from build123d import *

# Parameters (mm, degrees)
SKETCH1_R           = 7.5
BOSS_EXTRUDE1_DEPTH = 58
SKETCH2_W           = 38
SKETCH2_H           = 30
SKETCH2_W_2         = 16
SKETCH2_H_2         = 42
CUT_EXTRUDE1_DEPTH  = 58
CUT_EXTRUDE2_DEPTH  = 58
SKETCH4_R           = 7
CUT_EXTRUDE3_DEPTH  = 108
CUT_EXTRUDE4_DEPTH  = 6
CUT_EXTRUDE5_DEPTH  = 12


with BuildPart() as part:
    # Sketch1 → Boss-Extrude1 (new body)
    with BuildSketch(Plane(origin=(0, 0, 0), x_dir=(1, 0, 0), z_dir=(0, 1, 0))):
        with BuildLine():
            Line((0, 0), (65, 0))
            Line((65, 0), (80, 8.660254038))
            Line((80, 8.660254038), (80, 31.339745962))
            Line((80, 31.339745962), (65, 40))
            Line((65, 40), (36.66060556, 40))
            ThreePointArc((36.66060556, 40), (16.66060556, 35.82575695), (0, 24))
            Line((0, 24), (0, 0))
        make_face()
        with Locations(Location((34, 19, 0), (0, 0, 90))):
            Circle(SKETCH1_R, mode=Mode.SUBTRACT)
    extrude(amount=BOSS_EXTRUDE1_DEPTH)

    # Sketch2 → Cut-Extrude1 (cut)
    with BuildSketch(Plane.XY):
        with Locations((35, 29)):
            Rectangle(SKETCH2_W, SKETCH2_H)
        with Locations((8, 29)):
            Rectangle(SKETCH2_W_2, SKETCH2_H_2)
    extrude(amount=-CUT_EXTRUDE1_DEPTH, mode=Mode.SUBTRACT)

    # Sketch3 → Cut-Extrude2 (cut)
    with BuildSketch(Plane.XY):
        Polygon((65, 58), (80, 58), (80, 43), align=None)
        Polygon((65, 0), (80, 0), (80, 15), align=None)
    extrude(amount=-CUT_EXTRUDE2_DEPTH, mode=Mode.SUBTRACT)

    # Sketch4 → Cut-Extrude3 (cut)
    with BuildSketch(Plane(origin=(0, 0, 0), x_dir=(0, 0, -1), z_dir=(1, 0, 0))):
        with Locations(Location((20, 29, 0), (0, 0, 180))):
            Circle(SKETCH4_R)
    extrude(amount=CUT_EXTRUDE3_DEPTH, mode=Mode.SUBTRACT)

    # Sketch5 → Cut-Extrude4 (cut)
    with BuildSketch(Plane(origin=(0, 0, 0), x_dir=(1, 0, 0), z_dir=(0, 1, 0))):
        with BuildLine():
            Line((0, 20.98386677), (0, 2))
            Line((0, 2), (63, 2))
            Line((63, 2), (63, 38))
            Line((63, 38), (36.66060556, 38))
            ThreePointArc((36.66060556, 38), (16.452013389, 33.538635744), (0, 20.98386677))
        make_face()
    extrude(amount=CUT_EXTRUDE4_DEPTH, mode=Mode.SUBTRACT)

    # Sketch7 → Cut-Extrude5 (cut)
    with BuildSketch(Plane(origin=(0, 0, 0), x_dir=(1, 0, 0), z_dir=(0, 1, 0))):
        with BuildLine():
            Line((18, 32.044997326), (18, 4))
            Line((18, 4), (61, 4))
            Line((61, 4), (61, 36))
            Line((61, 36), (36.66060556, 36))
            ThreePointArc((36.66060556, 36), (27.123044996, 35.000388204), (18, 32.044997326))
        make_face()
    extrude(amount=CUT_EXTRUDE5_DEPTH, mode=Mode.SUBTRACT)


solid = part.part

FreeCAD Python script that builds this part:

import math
import FreeCAD as App
import Part
import Sketcher

V = App.Vector
Q = App.Units.Quantity

doc = App.newDocument("Part")
params = doc.addObject("Spreadsheet::Sheet", "Params")
for row, (alias, value) in enumerate([
    ("sketch1_diameter", "15 mm"),
    ("sketch1_radius", "50 mm"),
    ("sketch1_width", "65 mm"),
    ("sketch1_height", "24 mm"),
    ("pad1_length", "58 mm"),
    ("sketch2_width", "38 mm"),
    ("sketch2_width2", "16 mm"),
    ("sketch2_height", "30 mm"),
    ("sketch2_height2", "6 mm"),
    ("pocket1_length", "58 mm"),
    ("sketch3_width", "15 mm"),
    ("pocket2_length", "58 mm"),
    ("sketch4_diameter", "14 mm"),
    ("pocket3_length", "108 mm"),
    ("sketch5_radius", "48 mm"),
    ("sketch5_width", "63 mm"),
    ("sketch5_height", "36 mm"),
    ("pocket4_length", "6 mm"),
    ("sketch6_radius", "46 mm"),
    ("sketch6_width", "43 mm"),
    ("sketch6_height", "32 mm"),
    ("pocket5_length", "12 mm"),
], start=1):
    params.set(f"A{row}", alias)
    params.set(f"B{row}", "=" + value)
    params.setAlias(f"B{row}", alias)

body = doc.addObject("PartDesign::Body", "Body")

# Sketch on XZ plane
sketch1 = body.newObject("Sketcher::SketchObject", "Sketch")
sketch1.AttachmentSupport = (doc.getObject("XZ_Plane"), [""])
sketch1.MapMode = "FlatFace"
sketch1.addGeometry([
    Part.LineSegment(V(0, 0, 0), V(65, 0, 0)),  # 0
    Part.LineSegment(V(65, 0, 0), V(80, -9, 0)),  # 1
    Part.LineSegment(V(80, -9, 0), V(80, -31, 0)),  # 2
    Part.LineSegment(V(80, -31, 0), V(65, -40, 0)),  # 3
    Part.LineSegment(V(65, -40, 0), V(37, -40, 0)),  # 4
    Part.ArcOfCircle(Part.Circle(V(37, 10, 0), V(0, 0, 1), 50), math.radians(-137), math.radians(-90)),  # 5
    Part.LineSegment(V(0, -24, 0), V(0, 0, 0)),  # 6
    Part.Circle(V(34, -19, 0), V(0, 0, 1), 8),  # 7
], False)
sketch1.addConstraint([
    Sketcher.Constraint("Coincident", 0, 2, 1, 1),
    Sketcher.Constraint("Coincident", 1, 2, 2, 1),
    Sketcher.Constraint("Coincident", 2, 2, 3, 1),
    Sketcher.Constraint("Coincident", 3, 2, 4, 1),
    Sketcher.Constraint("Tangent", 4, 2, 5, 2),
    Sketcher.Constraint("Coincident", 5, 1, 6, 1),
    Sketcher.Constraint("Coincident", 6, 2, 0, 1),
    Sketcher.Constraint("Horizontal", 0),
    Sketcher.Constraint("Vertical", 2),
    Sketcher.Constraint("Horizontal", 4),
    Sketcher.Constraint("Vertical", 6),
    Sketcher.Constraint("Coincident", 6, 2, -1, 1),
    Sketcher.Constraint("Vertical", 0, 2, 3, 2),
    Sketcher.Constraint("Equal", 1, 3),
    Sketcher.Constraint("Diameter", 7, Q("15 mm")),
    Sketcher.Constraint("Radius", 5, Q("50 mm")),
    Sketcher.Constraint("DistanceX", 0, 1, 0, 2, Q("65 mm")),
    Sketcher.Constraint("DistanceY", 6, 1, 6, 2, Q("24 mm")),
    Sketcher.Constraint("Angle", 1, Q("-30 deg")),
    Sketcher.Constraint("DistanceY", -1, 1, 5, 3, Q("10 mm")),
    Sketcher.Constraint("DistanceX", -1, 1, 7, 3, Q("34 mm")),
    Sketcher.Constraint("DistanceY", 7, 3, -1, 1, Q("19 mm")),
    Sketcher.Constraint("DistanceX", -1, 1, 1, 2, Q("80 mm")),
])
sketch1.setExpression("Constraints[14]", "Params.sketch1_diameter")
sketch1.setExpression("Constraints[15]", "Params.sketch1_radius")
sketch1.setExpression("Constraints[16]", "Params.sketch1_width")
sketch1.setExpression("Constraints[17]", "Params.sketch1_height")
pad1 = body.newObject("PartDesign::Pad", "Pad")
pad1.Profile = sketch1
pad1.setExpression("Length", "Params.pad1_length")
pad1.Reversed = True

# Sketch on XY plane
sketch2 = body.newObject("Sketcher::SketchObject", "Sketch001")
sketch2.AttachmentSupport = (doc.getObject("XY_Plane"), [""])
sketch2.MapMode = "FlatFace"
sketch2.addGeometry([
    Part.LineSegment(V(16, 14, 0), V(54, 14, 0)),  # 0
    Part.LineSegment(V(54, 14, 0), V(54, 44, 0)),  # 1
    Part.LineSegment(V(54, 44, 0), V(16, 44, 0)),  # 2
    Part.LineSegment(V(16, 44, 0), V(16, 50, 0)),  # 3
    Part.LineSegment(V(16, 50, 0), V(0, 50, 0)),  # 4
    Part.LineSegment(V(0, 50, 0), V(0, 8, 0)),  # 5
    Part.LineSegment(V(0, 8, 0), V(16, 8, 0)),  # 6
    Part.LineSegment(V(16, 8, 0), V(16, 14, 0)),  # 7
], False)
sketch2.addConstraint([
    Sketcher.Constraint("Coincident", 0, 2, 1, 1),
    Sketcher.Constraint("Coincident", 1, 2, 2, 1),
    Sketcher.Constraint("Coincident", 2, 2, 3, 1),
    Sketcher.Constraint("Coincident", 3, 2, 4, 1),
    Sketcher.Constraint("Coincident", 4, 2, 5, 1),
    Sketcher.Constraint("Coincident", 5, 2, 6, 1),
    Sketcher.Constraint("Coincident", 6, 2, 7, 1),
    Sketcher.Constraint("Coincident", 7, 2, 0, 1),
    Sketcher.Constraint("Horizontal", 0),
    Sketcher.Constraint("Vertical", 1),
    Sketcher.Constraint("Horizontal", 2),
    Sketcher.Constraint("Vertical", 3),
    Sketcher.Constraint("Horizontal", 4),
    Sketcher.Constraint("Vertical", 5),
    Sketcher.Constraint("Horizontal", 6),
    Sketcher.Constraint("Vertical", 7),
    Sketcher.Constraint("PointOnObject", 4, 2, -2),
    Sketcher.Constraint("Vertical", 3, 2, 6, 2),
    Sketcher.Constraint("Equal", 3, 7),
    Sketcher.Constraint("DistanceX", 0, 1, 0, 2, Q("38 mm")),
    Sketcher.Constraint("DistanceX", 4, 2, 4, 1, Q("16 mm")),
    Sketcher.Constraint("DistanceY", 1, 1, 1, 2, Q("30 mm")),
    Sketcher.Constraint("DistanceY", 3, 1, 3, 2, Q("6 mm")),
    Sketcher.Constraint("DistanceY", -1, 1, 0, 2, Q("14 mm")),
])
sketch2.setExpression("Constraints[19]", "Params.sketch2_width")
sketch2.setExpression("Constraints[20]", "Params.sketch2_width2")
sketch2.setExpression("Constraints[21]", "Params.sketch2_height")
sketch2.setExpression("Constraints[22]", "Params.sketch2_height2")
pocket1 = body.newObject("PartDesign::Pocket", "Pocket")
pocket1.Profile = sketch2
pocket1.setExpression("Length", "Params.pocket1_length")

# Sketch on XY plane
sketch3 = body.newObject("Sketcher::SketchObject", "Sketch002")
sketch3.AttachmentSupport = (doc.getObject("XY_Plane"), [""])
sketch3.MapMode = "FlatFace"
sketch3.addGeometry([
    Part.LineSegment(V(80, 58, 0), V(65, 58, 0)),  # 0
    Part.LineSegment(V(65, 58, 0), V(80, 43, 0)),  # 1
    Part.LineSegment(V(80, 43, 0), V(80, 58, 0)),  # 2
    Part.LineSegment(V(65, 0, 0), V(80, 0, 0)),  # 3
    Part.LineSegment(V(80, 0, 0), V(80, 15, 0)),  # 4
    Part.LineSegment(V(80, 15, 0), V(65, 0, 0)),  # 5
], False)
sketch3.addConstraint([
    Sketcher.Constraint("Coincident", 0, 2, 1, 1),
    Sketcher.Constraint("Coincident", 1, 2, 2, 1),
    Sketcher.Constraint("Coincident", 2, 2, 0, 1),
    Sketcher.Constraint("Coincident", 3, 2, 4, 1),
    Sketcher.Constraint("Coincident", 4, 2, 5, 1),
    Sketcher.Constraint("Coincident", 5, 2, 3, 1),
    Sketcher.Constraint("Horizontal", 0),
    Sketcher.Constraint("Vertical", 2),
    Sketcher.Constraint("Horizontal", 3),
    Sketcher.Constraint("Vertical", 4),
    Sketcher.Constraint("PointOnObject", 3, 2, -1),
    Sketcher.Constraint("Perpendicular", 1, 5),
    Sketcher.Constraint("Vertical", 2, 2, 3, 2),
    Sketcher.Constraint("Vertical", 0, 2, 5, 2),
    Sketcher.Constraint("Equal", 3, 2),
    Sketcher.Constraint("DistanceX", 0, 2, 0, 1, Q("15 mm")),
    Sketcher.Constraint("DistanceX", -1, 1, 0, 2, Q("65 mm")),
    Sketcher.Constraint("DistanceY", -1, 1, 0, 2, Q("58 mm")),
])
sketch3.setExpression("Constraints[15]", "Params.sketch3_width")
pocket2 = body.newObject("PartDesign::Pocket", "Pocket001")
pocket2.Profile = sketch3
pocket2.setExpression("Length", "Params.pocket2_length")

# Sketch on YZ plane
sketch4 = body.newObject("Sketcher::SketchObject", "Sketch003")
sketch4.AttachmentSupport = (doc.getObject("YZ_Plane"), [""])
sketch4.MapMode = "FlatFace"
sketch4.addGeometry(Part.Circle(V(29, -20, 0), V(0, 0, 1), 7), False)
sketch4.addConstraint([
    Sketcher.Constraint("Diameter", 0, Q("14 mm")),
    Sketcher.Constraint("DistanceX", -1, 1, 0, 3, Q("29 mm")),
    Sketcher.Constraint("DistanceY", 0, 3, -1, 1, Q("20 mm")),
])
sketch4.setExpression("Constraints[0]", "Params.sketch4_diameter")
pocket3 = body.newObject("PartDesign::Pocket", "Pocket002")
pocket3.Profile = sketch4
pocket3.setExpression("Length", "Params.pocket3_length")
pocket3.Reversed = True

# Sketch on XZ plane
sketch5 = body.newObject("Sketcher::SketchObject", "Sketch004")
sketch5.AttachmentSupport = (doc.getObject("XZ_Plane"), [""])
sketch5.MapMode = "FlatFace"
sketch5.addGeometry([
    Part.LineSegment(V(0, -21, 0), V(0, -2, 0)),  # 0
    Part.LineSegment(V(0, -2, 0), V(63, -2, 0)),  # 1
    Part.LineSegment(V(63, -2, 0), V(63, -38, 0)),  # 2
    Part.LineSegment(V(63, -38, 0), V(37, -38, 0)),  # 3
    Part.ArcOfCircle(Part.Circle(V(37, 10, 0), V(0, 0, 1), 48), math.radians(-140), math.radians(-90)),  # 4
], False)
sketch5.addConstraint([
    Sketcher.Constraint("Coincident", 0, 2, 1, 1),
    Sketcher.Constraint("Coincident", 1, 2, 2, 1),
    Sketcher.Constraint("Coincident", 2, 2, 3, 1),
    Sketcher.Constraint("Tangent", 3, 2, 4, 2),
    Sketcher.Constraint("Coincident", 4, 1, 0, 1),
    Sketcher.Constraint("Vertical", 0),
    Sketcher.Constraint("Horizontal", 1),
    Sketcher.Constraint("Vertical", 2),
    Sketcher.Constraint("Horizontal", 3),
    Sketcher.Constraint("PointOnObject", 0, 2, -2),
    Sketcher.Constraint("Radius", 4, Q("48 mm")),
    Sketcher.Constraint("DistanceX", 1, 1, 1, 2, Q("63 mm")),
    Sketcher.Constraint("DistanceY", 2, 2, 2, 1, Q("36 mm")),
    Sketcher.Constraint("DistanceY", -1, 1, 4, 3, Q("10 mm")),
    Sketcher.Constraint("DistanceX", 3, 2, 3, 1, Q("26.339394 mm")),
])
sketch5.setExpression("Constraints[10]", "Params.sketch5_radius")
sketch5.setExpression("Constraints[11]", "Params.sketch5_width")
sketch5.setExpression("Constraints[12]", "Params.sketch5_height")
pocket4 = body.newObject("PartDesign::Pocket", "Pocket003")
pocket4.Profile = sketch5
pocket4.setExpression("Length", "Params.pocket4_length")

# Sketch on XZ plane
sketch6 = body.newObject("Sketcher::SketchObject", "Sketch005")
sketch6.AttachmentSupport = (doc.getObject("XZ_Plane"), [""])
sketch6.MapMode = "FlatFace"
sketch6.addGeometry([
    Part.LineSegment(V(18, -32, 0), V(18, -4, 0)),  # 0
    Part.LineSegment(V(18, -4, 0), V(61, -4, 0)),  # 1
    Part.LineSegment(V(61, -4, 0), V(61, -36, 0)),  # 2
    Part.LineSegment(V(61, -36, 0), V(37, -36, 0)),  # 3
    Part.ArcOfCircle(Part.Circle(V(37, 10, 0), V(0, 0, 1), 46), math.radians(-114), math.radians(-90)),  # 4
], False)
sketch6.addConstraint([
    Sketcher.Constraint("Coincident", 0, 2, 1, 1),
    Sketcher.Constraint("Coincident", 1, 2, 2, 1),
    Sketcher.Constraint("Coincident", 2, 2, 3, 1),
    Sketcher.Constraint("Tangent", 3, 2, 4, 2),
    Sketcher.Constraint("Coincident", 4, 1, 0, 1),
    Sketcher.Constraint("Vertical", 0),
    Sketcher.Constraint("Horizontal", 1),
    Sketcher.Constraint("Vertical", 2),
    Sketcher.Constraint("Horizontal", 3),
    Sketcher.Constraint("Radius", 4, Q("46 mm")),
    Sketcher.Constraint("DistanceX", 1, 1, 1, 2, Q("43 mm")),
    Sketcher.Constraint("DistanceY", 2, 2, 2, 1, Q("32 mm")),
    Sketcher.Constraint("DistanceY", -1, 1, 4, 3, Q("10 mm")),
    Sketcher.Constraint("DistanceX", -1, 1, 0, 2, Q("18 mm")),
    Sketcher.Constraint("DistanceX", 3, 2, 3, 1, Q("24.339394 mm")),
])
sketch6.setExpression("Constraints[9]", "Params.sketch6_radius")
sketch6.setExpression("Constraints[10]", "Params.sketch6_width")
sketch6.setExpression("Constraints[11]", "Params.sketch6_height")
pocket5 = body.newObject("PartDesign::Pocket", "Pocket004")
pocket5.Profile = sketch6
pocket5.setExpression("Length", "Params.pocket5_length")

doc.recompute()
